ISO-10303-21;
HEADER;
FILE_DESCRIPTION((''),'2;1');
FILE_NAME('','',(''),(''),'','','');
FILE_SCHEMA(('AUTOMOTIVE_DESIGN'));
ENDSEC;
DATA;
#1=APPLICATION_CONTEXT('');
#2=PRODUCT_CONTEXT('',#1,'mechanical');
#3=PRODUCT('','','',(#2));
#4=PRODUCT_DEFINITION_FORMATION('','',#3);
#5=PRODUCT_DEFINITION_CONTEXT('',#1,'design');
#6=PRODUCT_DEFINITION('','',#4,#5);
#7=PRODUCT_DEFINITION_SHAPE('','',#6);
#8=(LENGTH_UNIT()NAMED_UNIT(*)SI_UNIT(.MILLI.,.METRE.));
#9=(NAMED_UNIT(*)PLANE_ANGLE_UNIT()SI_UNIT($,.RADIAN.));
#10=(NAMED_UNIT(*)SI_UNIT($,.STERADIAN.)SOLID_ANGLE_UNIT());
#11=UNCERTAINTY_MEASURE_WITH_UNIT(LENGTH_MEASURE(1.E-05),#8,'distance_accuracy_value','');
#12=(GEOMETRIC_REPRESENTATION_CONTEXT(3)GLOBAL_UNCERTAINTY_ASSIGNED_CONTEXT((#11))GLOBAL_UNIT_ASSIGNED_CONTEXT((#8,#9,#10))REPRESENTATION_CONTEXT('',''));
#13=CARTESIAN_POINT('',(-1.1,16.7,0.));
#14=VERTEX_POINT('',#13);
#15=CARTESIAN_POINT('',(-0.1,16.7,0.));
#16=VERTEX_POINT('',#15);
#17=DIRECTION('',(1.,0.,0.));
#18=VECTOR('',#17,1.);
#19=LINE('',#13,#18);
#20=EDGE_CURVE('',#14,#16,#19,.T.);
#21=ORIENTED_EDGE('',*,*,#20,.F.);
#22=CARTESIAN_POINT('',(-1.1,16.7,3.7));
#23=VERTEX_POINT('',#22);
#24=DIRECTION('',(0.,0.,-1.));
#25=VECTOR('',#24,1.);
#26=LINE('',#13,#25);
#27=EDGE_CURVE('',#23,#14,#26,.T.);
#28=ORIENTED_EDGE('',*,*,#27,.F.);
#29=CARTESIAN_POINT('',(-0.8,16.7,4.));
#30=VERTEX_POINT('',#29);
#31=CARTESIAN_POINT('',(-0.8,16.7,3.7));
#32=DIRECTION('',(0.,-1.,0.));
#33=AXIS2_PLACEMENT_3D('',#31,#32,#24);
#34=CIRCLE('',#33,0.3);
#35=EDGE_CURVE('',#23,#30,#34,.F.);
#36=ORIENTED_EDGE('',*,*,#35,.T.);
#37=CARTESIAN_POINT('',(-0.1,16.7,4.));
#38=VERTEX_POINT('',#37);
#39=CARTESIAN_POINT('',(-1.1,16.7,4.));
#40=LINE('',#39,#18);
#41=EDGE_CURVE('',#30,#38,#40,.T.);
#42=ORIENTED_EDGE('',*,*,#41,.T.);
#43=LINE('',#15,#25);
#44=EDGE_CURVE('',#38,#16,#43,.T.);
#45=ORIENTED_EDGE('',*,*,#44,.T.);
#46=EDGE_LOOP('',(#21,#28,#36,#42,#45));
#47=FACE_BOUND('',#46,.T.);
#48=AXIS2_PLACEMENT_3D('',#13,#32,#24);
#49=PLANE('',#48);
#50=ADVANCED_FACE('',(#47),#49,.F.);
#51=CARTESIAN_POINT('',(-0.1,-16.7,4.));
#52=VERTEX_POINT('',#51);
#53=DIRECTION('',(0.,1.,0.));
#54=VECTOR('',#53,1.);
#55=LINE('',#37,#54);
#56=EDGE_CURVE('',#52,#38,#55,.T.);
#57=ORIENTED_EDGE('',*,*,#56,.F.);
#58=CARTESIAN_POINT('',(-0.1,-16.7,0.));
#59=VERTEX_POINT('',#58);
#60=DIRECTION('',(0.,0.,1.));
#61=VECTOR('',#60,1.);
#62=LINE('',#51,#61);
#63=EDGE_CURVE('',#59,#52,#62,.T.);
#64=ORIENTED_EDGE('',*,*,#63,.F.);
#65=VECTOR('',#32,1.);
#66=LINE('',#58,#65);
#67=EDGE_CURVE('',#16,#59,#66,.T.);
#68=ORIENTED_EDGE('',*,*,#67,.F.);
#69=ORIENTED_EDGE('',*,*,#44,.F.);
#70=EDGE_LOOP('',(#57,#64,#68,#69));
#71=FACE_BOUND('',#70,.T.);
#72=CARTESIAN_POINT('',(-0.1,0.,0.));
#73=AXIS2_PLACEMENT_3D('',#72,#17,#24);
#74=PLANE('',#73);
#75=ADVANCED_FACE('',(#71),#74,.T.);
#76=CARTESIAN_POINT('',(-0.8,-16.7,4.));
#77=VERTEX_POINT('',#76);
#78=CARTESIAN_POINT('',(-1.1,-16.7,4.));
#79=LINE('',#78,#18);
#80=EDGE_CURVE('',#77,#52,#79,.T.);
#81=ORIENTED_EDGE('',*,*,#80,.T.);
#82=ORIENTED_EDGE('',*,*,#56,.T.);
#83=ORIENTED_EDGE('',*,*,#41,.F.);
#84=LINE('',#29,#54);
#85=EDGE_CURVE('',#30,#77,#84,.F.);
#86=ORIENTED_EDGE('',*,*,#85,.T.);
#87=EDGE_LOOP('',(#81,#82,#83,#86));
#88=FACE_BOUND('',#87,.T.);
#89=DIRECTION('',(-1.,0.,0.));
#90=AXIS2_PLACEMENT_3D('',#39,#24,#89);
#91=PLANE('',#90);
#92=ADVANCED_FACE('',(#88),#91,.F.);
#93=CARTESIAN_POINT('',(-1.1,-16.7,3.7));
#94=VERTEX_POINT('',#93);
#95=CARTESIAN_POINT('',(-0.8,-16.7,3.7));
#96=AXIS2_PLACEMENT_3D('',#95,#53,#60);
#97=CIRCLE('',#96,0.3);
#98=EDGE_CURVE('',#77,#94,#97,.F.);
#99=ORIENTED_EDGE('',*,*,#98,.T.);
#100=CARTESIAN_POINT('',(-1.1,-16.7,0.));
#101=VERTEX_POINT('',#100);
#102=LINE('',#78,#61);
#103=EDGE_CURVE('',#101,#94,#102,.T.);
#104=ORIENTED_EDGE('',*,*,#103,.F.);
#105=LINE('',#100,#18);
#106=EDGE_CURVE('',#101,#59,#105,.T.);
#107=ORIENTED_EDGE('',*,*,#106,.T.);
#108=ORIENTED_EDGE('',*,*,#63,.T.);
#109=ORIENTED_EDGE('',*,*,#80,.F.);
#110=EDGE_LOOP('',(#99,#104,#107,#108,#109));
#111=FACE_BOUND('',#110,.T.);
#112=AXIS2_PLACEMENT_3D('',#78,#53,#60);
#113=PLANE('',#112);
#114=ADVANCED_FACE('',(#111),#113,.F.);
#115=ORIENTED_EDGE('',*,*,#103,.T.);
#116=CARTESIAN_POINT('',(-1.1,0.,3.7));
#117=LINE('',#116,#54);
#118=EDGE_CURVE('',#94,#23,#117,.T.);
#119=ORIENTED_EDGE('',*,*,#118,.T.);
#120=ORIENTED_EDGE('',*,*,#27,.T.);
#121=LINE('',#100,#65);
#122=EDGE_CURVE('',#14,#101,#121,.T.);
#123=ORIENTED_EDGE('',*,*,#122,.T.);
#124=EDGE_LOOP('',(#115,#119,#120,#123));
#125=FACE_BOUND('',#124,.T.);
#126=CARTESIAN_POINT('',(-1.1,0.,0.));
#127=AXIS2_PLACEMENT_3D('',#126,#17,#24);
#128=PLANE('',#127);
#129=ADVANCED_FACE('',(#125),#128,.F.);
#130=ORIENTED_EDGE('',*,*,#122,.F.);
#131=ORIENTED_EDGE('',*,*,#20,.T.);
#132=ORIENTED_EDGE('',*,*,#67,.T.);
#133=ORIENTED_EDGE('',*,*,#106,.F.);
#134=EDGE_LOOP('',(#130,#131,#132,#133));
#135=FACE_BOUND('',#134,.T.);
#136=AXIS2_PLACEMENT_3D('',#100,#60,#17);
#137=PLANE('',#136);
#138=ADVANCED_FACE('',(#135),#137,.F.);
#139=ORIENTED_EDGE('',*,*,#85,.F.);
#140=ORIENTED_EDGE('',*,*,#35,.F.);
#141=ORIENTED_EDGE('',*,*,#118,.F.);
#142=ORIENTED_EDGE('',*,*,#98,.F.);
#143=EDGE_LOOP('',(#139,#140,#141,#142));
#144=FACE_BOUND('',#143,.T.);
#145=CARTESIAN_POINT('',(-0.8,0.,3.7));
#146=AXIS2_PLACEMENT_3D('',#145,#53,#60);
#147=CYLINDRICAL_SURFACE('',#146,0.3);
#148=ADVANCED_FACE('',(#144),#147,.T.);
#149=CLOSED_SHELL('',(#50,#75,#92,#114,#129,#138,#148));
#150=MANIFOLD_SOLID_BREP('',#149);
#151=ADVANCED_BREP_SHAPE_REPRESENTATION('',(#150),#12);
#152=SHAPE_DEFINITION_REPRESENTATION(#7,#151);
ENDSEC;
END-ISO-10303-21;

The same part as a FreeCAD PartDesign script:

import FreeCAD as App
import Part
import Sketcher


def edges_at(feature, points):
    """Names of the edges that pass closest to the given points."""
    edges = feature.Shape.Edges
    near = lambda p: min(range(len(edges)), key=lambda i: edges[i].distToShape(Part.Vertex(*p))[0])
    return sorted({f"Edge{near(p) + 1}" for p in points})

doc = App.newDocument("Part")
body = doc.addObject("PartDesign::Body", "Body")

# Sketch on YZ plane
sketch1 = body.newObject("Sketcher::SketchObject", "Sketch")
sketch1.AttachmentSupport = (doc.getObject("YZ_Plane"), [""])
sketch1.MapMode = "FlatFace"
sketch1.AttachmentOffset = App.Placement(App.Vector(0, 0, -0.1), App.Rotation())
sketch1.addGeometry(Part.LineSegment(App.Vector(16.7, 0, 0), App.Vector(-16.7, 0, 0)), False)
sketch1.addGeometry(Part.LineSegment(App.Vector(-16.7, 0, 0), App.Vector(-16.7, 4, 0)), False)
sketch1.addGeometry(Part.LineSegment(App.Vector(-16.7, 4, 0), App.Vector(16.7, 4, 0)), False)
sketch1.addGeometry(Part.LineSegment(App.Vector(16.7, 4, 0), App.Vector(16.7, 0, 0)), False)
sketch1.addConstraint(Sketcher.Constraint("Coincident", 0, 2, 1, 1))
sketch1.addConstraint(Sketcher.Constraint("Coincident", 1, 2, 2, 1))
sketch1.addConstraint(Sketcher.Constraint("Coincident", 2, 2, 3, 1))
sketch1.addConstraint(Sketcher.Constraint("Coincident", 3, 2, 0, 1))
sketch1.addConstraint(Sketcher.Constraint("Horizontal", 0))
sketch1.addConstraint(Sketcher.Constraint("Vertical", 1))
sketch1.addConstraint(Sketcher.Constraint("Horizontal", 2))
sketch1.addConstraint(Sketcher.Constraint("Vertical", 3))
sketch1.addConstraint(Sketcher.Constraint("Symmetric", 0, 2, 3, 2, -1, 1))
sketch1.addConstraint(Sketcher.Constraint("DistanceY", 1, 1, 1, 2, 4.0))
sketch1.addConstraint(Sketcher.Constraint("DistanceX", 0, 2, 0, 1, 33.4))
pad1 = body.newObject("PartDesign::Pad", "Pad")
pad1.Profile = sketch1
pad1.Length = 1
pad1.Reversed = True
doc.recompute()

fillet = body.newObject("PartDesign::Fillet", "Fillet")
fillet.Base = (pad1, edges_at(pad1, [(-1.1, 0, 4)]))
fillet.Radius = 0.3

doc.recompute()
